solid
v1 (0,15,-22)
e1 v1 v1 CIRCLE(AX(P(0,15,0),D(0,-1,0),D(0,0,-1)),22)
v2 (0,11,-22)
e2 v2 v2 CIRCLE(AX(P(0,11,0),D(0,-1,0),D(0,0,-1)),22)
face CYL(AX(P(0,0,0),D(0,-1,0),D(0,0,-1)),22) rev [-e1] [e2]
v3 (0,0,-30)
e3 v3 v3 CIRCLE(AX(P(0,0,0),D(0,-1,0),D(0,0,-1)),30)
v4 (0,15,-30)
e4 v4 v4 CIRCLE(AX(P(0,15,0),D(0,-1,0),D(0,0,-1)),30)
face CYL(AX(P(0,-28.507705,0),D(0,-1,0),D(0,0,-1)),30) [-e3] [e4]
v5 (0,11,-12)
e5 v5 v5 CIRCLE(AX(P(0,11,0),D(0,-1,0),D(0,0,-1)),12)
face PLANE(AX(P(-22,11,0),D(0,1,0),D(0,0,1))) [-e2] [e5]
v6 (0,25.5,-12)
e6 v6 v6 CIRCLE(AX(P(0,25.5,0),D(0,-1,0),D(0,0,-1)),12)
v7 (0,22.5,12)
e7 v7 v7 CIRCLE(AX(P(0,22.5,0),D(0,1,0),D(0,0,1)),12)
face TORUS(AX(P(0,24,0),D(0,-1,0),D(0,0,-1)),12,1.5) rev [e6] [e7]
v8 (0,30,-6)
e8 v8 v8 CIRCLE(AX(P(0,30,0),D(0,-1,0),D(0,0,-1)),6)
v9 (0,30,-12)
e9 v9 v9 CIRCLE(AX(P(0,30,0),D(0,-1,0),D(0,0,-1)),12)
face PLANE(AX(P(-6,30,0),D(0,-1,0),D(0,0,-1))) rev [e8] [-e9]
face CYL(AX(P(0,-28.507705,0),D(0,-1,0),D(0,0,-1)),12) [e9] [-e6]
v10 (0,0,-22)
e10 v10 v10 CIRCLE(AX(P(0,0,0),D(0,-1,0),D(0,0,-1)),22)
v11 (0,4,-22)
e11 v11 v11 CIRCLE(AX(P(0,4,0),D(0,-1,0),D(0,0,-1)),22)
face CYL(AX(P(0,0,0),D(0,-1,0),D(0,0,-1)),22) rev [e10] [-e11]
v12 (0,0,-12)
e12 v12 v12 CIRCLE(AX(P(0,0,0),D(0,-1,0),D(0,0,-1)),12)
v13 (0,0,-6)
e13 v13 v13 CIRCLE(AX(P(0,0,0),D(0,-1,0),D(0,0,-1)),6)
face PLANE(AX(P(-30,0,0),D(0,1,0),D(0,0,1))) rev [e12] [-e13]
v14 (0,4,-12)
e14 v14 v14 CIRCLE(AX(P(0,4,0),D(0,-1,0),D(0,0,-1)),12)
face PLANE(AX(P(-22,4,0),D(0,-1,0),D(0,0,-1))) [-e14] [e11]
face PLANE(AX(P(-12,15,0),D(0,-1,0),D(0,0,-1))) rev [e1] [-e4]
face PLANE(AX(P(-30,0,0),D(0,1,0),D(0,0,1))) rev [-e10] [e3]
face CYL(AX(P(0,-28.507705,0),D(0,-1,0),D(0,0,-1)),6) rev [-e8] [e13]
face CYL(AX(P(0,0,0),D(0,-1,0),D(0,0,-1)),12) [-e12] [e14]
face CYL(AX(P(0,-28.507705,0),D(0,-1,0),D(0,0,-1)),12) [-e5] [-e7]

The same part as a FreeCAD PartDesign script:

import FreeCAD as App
import Part
import Sketcher

V = App.Vector
Q = App.Units.Quantity

doc = App.newDocument("Part")
params = doc.addObject("Spreadsheet::Sheet", "Params")
for row, (alias, value) in enumerate([
    ("sketch1_width", "18 mm"),
    ("sketch1_width2", "24 mm"),
    ("sketch1_height", "15 mm"),
    ("revolution_angle", "360 deg"),
    ("sketch2_diameter", "3 mm"),
    ("sketch2_width", "10 mm"),
    ("sketch2_height", "4 mm"),
    ("groove_angle", "360 deg"),
], start=1):
    params.set(f"A{row}", alias)
    params.set(f"B{row}", "=" + value)
    params.setAlias(f"B{row}", alias)

body = doc.addObject("PartDesign::Body", "Body")

# Sketch on XY plane
sketch1 = body.newObject("Sketcher::SketchObject", "Sketch")
sketch1.AttachmentSupport = (doc.getObject("XY_Plane"), [""])
sketch1.MapMode = "FlatFace"
sketch1.addGeometry([
    Part.LineSegment(V(-12, 30, 0), V(-12, 15, 0)),  # 0
    Part.LineSegment(V(-12, 15, 0), V(-30, 15, 0)),  # 1
    Part.LineSegment(V(-30, 15, 0), V(-30, 0, 0)),  # 2
    Part.LineSegment(V(-30, 0, 0), V(-6, 0, 0)),  # 3
    Part.LineSegment(V(-6, 0, 0), V(-6, 30, 0)),  # 4
    Part.LineSegment(V(-6, 30, 0), V(-12, 30, 0)),  # 5
], False)
sketch1.addConstraint([
    Sketcher.Constraint("Coincident", 0, 2, 1, 1),
    Sketcher.Constraint("Coincident", 1, 2, 2, 1),
    Sketcher.Constraint("Coincident", 2, 2, 3, 1),
    Sketcher.Constraint("Coincident", 3, 2, 4, 1),
    Sketcher.Constraint("Coincident", 4, 2, 5, 1),
    Sketcher.Constraint("Coincident", 5, 2, 0, 1),
    Sketcher.Constraint("Vertical", 0),
    Sketcher.Constraint("Horizontal", 1),
    Sketcher.Constraint("Vertical", 2),
    Sketcher.Constraint("Horizontal", 3),
    Sketcher.Constraint("Vertical", 4),
    Sketcher.Constraint("Horizontal", 5),
    Sketcher.Constraint("PointOnObject", 2, 2, -1),
    Sketcher.Constraint("Equal", 0, 2),
    Sketcher.Constraint("DistanceX", 1, 2, 1, 1, Q("18 mm")),
    Sketcher.Constraint("DistanceX", 3, 1, 3, 2, Q("24 mm")),
    Sketcher.Constraint("DistanceY", 0, 2, 0, 1, Q("15 mm")),
    Sketcher.Constraint("DistanceX", 0, 2, -1, 1, Q("12 mm")),
])
sketch1.setExpression("Constraints[14]", "Params.sketch1_width")
sketch1.setExpression("Constraints[15]", "Params.sketch1_width2")
sketch1.setExpression("Constraints[16]", "Params.sketch1_height")
revolution = body.newObject("PartDesign::Revolution", "Revolution")
revolution.Profile = sketch1
revolution.ReferenceAxis = (sketch1, ["V_Axis"])
revolution.setExpression("Angle", "Params.revolution_angle")

# Sketch on XY plane
sketch2 = body.newObject("Sketcher::SketchObject", "Sketch001")
sketch2.AttachmentSupport = (doc.getObject("XY_Plane"), [""])
sketch2.MapMode = "FlatFace"
sketch2.addGeometry([
    Part.Circle(V(-12, 24, 0), V(0, 0, 1), 1.5),  # 0
    Part.LineSegment(V(-22, 15, 0), V(-22, 11, 0)),  # 1
    Part.LineSegment(V(-22, 11, 0), V(-12, 11, 0)),  # 2
    Part.LineSegment(V(-12, 11, 0), V(-12, 15, 0)),  # 3
    Part.LineSegment(V(-12, 15, 0), V(-22, 15, 0)),  # 4
    Part.LineSegment(V(-22, 4, 0), V(-22, 0, 0)),  # 5
    Part.LineSegment(V(-22, 0, 0), V(-12, 0, 0)),  # 6
    Part.LineSegment(V(-12, 0, 0), V(-12, 4, 0)),  # 7
    Part.LineSegment(V(-12, 4, 0), V(-22, 4, 0)),  # 8
], False)
sketch2.addConstraint([
    Sketcher.Constraint("Coincident", 1, 2, 2, 1),
    Sketcher.Constraint("Coincident", 2, 2, 3, 1),
    Sketcher.Constraint("Coincident", 3, 2, 4, 1),
    Sketcher.Constraint("Coincident", 4, 2, 1, 1),
    Sketcher.Constraint("Coincident", 5, 2, 6, 1),
    Sketcher.Constraint("Coincident", 6, 2, 7, 1),
    Sketcher.Constraint("Coincident", 7, 2, 8, 1),
    Sketcher.Constraint("Coincident", 8, 2, 5, 1),
    Sketcher.Constraint("Vertical", 1),
    Sketcher.Constraint("Horizontal", 2),
    Sketcher.Constraint("Vertical", 3),
    Sketcher.Constraint("Horizontal", 4),
    Sketcher.Constraint("Vertical", 5),
    Sketcher.Constraint("Horizontal", 6),
    Sketcher.Constraint("Vertical", 7),
    Sketcher.Constraint("Horizontal", 8),
    Sketcher.Constraint("PointOnObject", 5, 2, -1),
    Sketcher.Constraint("Vertical", 0, 3, 2, 2),
    Sketcher.Constraint("Vertical", 4, 2, 5, 2),
    Sketcher.Constraint("Vertical", 3, 2, 6, 2),
    Sketcher.Constraint("Equal", 3, 5),
    Sketcher.Constraint("Diameter", 0, Q("3 mm")),
    Sketcher.Constraint("DistanceX", 2, 1, 2, 2, Q("10 mm")),
    Sketcher.Constraint("DistanceY", 1, 2, 1, 1, Q("4 mm")),
    Sketcher.Constraint("DistanceX", 0, 3, -1, 1, Q("12 mm")),
    Sketcher.Constraint("DistanceY", -1, 1, 0, 3, Q("24 mm")),
    Sketcher.Constraint("DistanceY", -1, 1, 1, 2, Q("11 mm")),
])
sketch2.setExpression("Constraints[21]", "Params.sketch2_diameter")
sketch2.setExpression("Constraints[22]", "Params.sketch2_width")
sketch2.setExpression("Constraints[23]", "Params.sketch2_height")
groove = body.newObject("PartDesign::Groove", "Groove")
groove.Profile = sketch2
groove.ReferenceAxis = (sketch2, ["V_Axis"])
groove.setExpression("Angle", "Params.groove_angle")

doc.recompute()
